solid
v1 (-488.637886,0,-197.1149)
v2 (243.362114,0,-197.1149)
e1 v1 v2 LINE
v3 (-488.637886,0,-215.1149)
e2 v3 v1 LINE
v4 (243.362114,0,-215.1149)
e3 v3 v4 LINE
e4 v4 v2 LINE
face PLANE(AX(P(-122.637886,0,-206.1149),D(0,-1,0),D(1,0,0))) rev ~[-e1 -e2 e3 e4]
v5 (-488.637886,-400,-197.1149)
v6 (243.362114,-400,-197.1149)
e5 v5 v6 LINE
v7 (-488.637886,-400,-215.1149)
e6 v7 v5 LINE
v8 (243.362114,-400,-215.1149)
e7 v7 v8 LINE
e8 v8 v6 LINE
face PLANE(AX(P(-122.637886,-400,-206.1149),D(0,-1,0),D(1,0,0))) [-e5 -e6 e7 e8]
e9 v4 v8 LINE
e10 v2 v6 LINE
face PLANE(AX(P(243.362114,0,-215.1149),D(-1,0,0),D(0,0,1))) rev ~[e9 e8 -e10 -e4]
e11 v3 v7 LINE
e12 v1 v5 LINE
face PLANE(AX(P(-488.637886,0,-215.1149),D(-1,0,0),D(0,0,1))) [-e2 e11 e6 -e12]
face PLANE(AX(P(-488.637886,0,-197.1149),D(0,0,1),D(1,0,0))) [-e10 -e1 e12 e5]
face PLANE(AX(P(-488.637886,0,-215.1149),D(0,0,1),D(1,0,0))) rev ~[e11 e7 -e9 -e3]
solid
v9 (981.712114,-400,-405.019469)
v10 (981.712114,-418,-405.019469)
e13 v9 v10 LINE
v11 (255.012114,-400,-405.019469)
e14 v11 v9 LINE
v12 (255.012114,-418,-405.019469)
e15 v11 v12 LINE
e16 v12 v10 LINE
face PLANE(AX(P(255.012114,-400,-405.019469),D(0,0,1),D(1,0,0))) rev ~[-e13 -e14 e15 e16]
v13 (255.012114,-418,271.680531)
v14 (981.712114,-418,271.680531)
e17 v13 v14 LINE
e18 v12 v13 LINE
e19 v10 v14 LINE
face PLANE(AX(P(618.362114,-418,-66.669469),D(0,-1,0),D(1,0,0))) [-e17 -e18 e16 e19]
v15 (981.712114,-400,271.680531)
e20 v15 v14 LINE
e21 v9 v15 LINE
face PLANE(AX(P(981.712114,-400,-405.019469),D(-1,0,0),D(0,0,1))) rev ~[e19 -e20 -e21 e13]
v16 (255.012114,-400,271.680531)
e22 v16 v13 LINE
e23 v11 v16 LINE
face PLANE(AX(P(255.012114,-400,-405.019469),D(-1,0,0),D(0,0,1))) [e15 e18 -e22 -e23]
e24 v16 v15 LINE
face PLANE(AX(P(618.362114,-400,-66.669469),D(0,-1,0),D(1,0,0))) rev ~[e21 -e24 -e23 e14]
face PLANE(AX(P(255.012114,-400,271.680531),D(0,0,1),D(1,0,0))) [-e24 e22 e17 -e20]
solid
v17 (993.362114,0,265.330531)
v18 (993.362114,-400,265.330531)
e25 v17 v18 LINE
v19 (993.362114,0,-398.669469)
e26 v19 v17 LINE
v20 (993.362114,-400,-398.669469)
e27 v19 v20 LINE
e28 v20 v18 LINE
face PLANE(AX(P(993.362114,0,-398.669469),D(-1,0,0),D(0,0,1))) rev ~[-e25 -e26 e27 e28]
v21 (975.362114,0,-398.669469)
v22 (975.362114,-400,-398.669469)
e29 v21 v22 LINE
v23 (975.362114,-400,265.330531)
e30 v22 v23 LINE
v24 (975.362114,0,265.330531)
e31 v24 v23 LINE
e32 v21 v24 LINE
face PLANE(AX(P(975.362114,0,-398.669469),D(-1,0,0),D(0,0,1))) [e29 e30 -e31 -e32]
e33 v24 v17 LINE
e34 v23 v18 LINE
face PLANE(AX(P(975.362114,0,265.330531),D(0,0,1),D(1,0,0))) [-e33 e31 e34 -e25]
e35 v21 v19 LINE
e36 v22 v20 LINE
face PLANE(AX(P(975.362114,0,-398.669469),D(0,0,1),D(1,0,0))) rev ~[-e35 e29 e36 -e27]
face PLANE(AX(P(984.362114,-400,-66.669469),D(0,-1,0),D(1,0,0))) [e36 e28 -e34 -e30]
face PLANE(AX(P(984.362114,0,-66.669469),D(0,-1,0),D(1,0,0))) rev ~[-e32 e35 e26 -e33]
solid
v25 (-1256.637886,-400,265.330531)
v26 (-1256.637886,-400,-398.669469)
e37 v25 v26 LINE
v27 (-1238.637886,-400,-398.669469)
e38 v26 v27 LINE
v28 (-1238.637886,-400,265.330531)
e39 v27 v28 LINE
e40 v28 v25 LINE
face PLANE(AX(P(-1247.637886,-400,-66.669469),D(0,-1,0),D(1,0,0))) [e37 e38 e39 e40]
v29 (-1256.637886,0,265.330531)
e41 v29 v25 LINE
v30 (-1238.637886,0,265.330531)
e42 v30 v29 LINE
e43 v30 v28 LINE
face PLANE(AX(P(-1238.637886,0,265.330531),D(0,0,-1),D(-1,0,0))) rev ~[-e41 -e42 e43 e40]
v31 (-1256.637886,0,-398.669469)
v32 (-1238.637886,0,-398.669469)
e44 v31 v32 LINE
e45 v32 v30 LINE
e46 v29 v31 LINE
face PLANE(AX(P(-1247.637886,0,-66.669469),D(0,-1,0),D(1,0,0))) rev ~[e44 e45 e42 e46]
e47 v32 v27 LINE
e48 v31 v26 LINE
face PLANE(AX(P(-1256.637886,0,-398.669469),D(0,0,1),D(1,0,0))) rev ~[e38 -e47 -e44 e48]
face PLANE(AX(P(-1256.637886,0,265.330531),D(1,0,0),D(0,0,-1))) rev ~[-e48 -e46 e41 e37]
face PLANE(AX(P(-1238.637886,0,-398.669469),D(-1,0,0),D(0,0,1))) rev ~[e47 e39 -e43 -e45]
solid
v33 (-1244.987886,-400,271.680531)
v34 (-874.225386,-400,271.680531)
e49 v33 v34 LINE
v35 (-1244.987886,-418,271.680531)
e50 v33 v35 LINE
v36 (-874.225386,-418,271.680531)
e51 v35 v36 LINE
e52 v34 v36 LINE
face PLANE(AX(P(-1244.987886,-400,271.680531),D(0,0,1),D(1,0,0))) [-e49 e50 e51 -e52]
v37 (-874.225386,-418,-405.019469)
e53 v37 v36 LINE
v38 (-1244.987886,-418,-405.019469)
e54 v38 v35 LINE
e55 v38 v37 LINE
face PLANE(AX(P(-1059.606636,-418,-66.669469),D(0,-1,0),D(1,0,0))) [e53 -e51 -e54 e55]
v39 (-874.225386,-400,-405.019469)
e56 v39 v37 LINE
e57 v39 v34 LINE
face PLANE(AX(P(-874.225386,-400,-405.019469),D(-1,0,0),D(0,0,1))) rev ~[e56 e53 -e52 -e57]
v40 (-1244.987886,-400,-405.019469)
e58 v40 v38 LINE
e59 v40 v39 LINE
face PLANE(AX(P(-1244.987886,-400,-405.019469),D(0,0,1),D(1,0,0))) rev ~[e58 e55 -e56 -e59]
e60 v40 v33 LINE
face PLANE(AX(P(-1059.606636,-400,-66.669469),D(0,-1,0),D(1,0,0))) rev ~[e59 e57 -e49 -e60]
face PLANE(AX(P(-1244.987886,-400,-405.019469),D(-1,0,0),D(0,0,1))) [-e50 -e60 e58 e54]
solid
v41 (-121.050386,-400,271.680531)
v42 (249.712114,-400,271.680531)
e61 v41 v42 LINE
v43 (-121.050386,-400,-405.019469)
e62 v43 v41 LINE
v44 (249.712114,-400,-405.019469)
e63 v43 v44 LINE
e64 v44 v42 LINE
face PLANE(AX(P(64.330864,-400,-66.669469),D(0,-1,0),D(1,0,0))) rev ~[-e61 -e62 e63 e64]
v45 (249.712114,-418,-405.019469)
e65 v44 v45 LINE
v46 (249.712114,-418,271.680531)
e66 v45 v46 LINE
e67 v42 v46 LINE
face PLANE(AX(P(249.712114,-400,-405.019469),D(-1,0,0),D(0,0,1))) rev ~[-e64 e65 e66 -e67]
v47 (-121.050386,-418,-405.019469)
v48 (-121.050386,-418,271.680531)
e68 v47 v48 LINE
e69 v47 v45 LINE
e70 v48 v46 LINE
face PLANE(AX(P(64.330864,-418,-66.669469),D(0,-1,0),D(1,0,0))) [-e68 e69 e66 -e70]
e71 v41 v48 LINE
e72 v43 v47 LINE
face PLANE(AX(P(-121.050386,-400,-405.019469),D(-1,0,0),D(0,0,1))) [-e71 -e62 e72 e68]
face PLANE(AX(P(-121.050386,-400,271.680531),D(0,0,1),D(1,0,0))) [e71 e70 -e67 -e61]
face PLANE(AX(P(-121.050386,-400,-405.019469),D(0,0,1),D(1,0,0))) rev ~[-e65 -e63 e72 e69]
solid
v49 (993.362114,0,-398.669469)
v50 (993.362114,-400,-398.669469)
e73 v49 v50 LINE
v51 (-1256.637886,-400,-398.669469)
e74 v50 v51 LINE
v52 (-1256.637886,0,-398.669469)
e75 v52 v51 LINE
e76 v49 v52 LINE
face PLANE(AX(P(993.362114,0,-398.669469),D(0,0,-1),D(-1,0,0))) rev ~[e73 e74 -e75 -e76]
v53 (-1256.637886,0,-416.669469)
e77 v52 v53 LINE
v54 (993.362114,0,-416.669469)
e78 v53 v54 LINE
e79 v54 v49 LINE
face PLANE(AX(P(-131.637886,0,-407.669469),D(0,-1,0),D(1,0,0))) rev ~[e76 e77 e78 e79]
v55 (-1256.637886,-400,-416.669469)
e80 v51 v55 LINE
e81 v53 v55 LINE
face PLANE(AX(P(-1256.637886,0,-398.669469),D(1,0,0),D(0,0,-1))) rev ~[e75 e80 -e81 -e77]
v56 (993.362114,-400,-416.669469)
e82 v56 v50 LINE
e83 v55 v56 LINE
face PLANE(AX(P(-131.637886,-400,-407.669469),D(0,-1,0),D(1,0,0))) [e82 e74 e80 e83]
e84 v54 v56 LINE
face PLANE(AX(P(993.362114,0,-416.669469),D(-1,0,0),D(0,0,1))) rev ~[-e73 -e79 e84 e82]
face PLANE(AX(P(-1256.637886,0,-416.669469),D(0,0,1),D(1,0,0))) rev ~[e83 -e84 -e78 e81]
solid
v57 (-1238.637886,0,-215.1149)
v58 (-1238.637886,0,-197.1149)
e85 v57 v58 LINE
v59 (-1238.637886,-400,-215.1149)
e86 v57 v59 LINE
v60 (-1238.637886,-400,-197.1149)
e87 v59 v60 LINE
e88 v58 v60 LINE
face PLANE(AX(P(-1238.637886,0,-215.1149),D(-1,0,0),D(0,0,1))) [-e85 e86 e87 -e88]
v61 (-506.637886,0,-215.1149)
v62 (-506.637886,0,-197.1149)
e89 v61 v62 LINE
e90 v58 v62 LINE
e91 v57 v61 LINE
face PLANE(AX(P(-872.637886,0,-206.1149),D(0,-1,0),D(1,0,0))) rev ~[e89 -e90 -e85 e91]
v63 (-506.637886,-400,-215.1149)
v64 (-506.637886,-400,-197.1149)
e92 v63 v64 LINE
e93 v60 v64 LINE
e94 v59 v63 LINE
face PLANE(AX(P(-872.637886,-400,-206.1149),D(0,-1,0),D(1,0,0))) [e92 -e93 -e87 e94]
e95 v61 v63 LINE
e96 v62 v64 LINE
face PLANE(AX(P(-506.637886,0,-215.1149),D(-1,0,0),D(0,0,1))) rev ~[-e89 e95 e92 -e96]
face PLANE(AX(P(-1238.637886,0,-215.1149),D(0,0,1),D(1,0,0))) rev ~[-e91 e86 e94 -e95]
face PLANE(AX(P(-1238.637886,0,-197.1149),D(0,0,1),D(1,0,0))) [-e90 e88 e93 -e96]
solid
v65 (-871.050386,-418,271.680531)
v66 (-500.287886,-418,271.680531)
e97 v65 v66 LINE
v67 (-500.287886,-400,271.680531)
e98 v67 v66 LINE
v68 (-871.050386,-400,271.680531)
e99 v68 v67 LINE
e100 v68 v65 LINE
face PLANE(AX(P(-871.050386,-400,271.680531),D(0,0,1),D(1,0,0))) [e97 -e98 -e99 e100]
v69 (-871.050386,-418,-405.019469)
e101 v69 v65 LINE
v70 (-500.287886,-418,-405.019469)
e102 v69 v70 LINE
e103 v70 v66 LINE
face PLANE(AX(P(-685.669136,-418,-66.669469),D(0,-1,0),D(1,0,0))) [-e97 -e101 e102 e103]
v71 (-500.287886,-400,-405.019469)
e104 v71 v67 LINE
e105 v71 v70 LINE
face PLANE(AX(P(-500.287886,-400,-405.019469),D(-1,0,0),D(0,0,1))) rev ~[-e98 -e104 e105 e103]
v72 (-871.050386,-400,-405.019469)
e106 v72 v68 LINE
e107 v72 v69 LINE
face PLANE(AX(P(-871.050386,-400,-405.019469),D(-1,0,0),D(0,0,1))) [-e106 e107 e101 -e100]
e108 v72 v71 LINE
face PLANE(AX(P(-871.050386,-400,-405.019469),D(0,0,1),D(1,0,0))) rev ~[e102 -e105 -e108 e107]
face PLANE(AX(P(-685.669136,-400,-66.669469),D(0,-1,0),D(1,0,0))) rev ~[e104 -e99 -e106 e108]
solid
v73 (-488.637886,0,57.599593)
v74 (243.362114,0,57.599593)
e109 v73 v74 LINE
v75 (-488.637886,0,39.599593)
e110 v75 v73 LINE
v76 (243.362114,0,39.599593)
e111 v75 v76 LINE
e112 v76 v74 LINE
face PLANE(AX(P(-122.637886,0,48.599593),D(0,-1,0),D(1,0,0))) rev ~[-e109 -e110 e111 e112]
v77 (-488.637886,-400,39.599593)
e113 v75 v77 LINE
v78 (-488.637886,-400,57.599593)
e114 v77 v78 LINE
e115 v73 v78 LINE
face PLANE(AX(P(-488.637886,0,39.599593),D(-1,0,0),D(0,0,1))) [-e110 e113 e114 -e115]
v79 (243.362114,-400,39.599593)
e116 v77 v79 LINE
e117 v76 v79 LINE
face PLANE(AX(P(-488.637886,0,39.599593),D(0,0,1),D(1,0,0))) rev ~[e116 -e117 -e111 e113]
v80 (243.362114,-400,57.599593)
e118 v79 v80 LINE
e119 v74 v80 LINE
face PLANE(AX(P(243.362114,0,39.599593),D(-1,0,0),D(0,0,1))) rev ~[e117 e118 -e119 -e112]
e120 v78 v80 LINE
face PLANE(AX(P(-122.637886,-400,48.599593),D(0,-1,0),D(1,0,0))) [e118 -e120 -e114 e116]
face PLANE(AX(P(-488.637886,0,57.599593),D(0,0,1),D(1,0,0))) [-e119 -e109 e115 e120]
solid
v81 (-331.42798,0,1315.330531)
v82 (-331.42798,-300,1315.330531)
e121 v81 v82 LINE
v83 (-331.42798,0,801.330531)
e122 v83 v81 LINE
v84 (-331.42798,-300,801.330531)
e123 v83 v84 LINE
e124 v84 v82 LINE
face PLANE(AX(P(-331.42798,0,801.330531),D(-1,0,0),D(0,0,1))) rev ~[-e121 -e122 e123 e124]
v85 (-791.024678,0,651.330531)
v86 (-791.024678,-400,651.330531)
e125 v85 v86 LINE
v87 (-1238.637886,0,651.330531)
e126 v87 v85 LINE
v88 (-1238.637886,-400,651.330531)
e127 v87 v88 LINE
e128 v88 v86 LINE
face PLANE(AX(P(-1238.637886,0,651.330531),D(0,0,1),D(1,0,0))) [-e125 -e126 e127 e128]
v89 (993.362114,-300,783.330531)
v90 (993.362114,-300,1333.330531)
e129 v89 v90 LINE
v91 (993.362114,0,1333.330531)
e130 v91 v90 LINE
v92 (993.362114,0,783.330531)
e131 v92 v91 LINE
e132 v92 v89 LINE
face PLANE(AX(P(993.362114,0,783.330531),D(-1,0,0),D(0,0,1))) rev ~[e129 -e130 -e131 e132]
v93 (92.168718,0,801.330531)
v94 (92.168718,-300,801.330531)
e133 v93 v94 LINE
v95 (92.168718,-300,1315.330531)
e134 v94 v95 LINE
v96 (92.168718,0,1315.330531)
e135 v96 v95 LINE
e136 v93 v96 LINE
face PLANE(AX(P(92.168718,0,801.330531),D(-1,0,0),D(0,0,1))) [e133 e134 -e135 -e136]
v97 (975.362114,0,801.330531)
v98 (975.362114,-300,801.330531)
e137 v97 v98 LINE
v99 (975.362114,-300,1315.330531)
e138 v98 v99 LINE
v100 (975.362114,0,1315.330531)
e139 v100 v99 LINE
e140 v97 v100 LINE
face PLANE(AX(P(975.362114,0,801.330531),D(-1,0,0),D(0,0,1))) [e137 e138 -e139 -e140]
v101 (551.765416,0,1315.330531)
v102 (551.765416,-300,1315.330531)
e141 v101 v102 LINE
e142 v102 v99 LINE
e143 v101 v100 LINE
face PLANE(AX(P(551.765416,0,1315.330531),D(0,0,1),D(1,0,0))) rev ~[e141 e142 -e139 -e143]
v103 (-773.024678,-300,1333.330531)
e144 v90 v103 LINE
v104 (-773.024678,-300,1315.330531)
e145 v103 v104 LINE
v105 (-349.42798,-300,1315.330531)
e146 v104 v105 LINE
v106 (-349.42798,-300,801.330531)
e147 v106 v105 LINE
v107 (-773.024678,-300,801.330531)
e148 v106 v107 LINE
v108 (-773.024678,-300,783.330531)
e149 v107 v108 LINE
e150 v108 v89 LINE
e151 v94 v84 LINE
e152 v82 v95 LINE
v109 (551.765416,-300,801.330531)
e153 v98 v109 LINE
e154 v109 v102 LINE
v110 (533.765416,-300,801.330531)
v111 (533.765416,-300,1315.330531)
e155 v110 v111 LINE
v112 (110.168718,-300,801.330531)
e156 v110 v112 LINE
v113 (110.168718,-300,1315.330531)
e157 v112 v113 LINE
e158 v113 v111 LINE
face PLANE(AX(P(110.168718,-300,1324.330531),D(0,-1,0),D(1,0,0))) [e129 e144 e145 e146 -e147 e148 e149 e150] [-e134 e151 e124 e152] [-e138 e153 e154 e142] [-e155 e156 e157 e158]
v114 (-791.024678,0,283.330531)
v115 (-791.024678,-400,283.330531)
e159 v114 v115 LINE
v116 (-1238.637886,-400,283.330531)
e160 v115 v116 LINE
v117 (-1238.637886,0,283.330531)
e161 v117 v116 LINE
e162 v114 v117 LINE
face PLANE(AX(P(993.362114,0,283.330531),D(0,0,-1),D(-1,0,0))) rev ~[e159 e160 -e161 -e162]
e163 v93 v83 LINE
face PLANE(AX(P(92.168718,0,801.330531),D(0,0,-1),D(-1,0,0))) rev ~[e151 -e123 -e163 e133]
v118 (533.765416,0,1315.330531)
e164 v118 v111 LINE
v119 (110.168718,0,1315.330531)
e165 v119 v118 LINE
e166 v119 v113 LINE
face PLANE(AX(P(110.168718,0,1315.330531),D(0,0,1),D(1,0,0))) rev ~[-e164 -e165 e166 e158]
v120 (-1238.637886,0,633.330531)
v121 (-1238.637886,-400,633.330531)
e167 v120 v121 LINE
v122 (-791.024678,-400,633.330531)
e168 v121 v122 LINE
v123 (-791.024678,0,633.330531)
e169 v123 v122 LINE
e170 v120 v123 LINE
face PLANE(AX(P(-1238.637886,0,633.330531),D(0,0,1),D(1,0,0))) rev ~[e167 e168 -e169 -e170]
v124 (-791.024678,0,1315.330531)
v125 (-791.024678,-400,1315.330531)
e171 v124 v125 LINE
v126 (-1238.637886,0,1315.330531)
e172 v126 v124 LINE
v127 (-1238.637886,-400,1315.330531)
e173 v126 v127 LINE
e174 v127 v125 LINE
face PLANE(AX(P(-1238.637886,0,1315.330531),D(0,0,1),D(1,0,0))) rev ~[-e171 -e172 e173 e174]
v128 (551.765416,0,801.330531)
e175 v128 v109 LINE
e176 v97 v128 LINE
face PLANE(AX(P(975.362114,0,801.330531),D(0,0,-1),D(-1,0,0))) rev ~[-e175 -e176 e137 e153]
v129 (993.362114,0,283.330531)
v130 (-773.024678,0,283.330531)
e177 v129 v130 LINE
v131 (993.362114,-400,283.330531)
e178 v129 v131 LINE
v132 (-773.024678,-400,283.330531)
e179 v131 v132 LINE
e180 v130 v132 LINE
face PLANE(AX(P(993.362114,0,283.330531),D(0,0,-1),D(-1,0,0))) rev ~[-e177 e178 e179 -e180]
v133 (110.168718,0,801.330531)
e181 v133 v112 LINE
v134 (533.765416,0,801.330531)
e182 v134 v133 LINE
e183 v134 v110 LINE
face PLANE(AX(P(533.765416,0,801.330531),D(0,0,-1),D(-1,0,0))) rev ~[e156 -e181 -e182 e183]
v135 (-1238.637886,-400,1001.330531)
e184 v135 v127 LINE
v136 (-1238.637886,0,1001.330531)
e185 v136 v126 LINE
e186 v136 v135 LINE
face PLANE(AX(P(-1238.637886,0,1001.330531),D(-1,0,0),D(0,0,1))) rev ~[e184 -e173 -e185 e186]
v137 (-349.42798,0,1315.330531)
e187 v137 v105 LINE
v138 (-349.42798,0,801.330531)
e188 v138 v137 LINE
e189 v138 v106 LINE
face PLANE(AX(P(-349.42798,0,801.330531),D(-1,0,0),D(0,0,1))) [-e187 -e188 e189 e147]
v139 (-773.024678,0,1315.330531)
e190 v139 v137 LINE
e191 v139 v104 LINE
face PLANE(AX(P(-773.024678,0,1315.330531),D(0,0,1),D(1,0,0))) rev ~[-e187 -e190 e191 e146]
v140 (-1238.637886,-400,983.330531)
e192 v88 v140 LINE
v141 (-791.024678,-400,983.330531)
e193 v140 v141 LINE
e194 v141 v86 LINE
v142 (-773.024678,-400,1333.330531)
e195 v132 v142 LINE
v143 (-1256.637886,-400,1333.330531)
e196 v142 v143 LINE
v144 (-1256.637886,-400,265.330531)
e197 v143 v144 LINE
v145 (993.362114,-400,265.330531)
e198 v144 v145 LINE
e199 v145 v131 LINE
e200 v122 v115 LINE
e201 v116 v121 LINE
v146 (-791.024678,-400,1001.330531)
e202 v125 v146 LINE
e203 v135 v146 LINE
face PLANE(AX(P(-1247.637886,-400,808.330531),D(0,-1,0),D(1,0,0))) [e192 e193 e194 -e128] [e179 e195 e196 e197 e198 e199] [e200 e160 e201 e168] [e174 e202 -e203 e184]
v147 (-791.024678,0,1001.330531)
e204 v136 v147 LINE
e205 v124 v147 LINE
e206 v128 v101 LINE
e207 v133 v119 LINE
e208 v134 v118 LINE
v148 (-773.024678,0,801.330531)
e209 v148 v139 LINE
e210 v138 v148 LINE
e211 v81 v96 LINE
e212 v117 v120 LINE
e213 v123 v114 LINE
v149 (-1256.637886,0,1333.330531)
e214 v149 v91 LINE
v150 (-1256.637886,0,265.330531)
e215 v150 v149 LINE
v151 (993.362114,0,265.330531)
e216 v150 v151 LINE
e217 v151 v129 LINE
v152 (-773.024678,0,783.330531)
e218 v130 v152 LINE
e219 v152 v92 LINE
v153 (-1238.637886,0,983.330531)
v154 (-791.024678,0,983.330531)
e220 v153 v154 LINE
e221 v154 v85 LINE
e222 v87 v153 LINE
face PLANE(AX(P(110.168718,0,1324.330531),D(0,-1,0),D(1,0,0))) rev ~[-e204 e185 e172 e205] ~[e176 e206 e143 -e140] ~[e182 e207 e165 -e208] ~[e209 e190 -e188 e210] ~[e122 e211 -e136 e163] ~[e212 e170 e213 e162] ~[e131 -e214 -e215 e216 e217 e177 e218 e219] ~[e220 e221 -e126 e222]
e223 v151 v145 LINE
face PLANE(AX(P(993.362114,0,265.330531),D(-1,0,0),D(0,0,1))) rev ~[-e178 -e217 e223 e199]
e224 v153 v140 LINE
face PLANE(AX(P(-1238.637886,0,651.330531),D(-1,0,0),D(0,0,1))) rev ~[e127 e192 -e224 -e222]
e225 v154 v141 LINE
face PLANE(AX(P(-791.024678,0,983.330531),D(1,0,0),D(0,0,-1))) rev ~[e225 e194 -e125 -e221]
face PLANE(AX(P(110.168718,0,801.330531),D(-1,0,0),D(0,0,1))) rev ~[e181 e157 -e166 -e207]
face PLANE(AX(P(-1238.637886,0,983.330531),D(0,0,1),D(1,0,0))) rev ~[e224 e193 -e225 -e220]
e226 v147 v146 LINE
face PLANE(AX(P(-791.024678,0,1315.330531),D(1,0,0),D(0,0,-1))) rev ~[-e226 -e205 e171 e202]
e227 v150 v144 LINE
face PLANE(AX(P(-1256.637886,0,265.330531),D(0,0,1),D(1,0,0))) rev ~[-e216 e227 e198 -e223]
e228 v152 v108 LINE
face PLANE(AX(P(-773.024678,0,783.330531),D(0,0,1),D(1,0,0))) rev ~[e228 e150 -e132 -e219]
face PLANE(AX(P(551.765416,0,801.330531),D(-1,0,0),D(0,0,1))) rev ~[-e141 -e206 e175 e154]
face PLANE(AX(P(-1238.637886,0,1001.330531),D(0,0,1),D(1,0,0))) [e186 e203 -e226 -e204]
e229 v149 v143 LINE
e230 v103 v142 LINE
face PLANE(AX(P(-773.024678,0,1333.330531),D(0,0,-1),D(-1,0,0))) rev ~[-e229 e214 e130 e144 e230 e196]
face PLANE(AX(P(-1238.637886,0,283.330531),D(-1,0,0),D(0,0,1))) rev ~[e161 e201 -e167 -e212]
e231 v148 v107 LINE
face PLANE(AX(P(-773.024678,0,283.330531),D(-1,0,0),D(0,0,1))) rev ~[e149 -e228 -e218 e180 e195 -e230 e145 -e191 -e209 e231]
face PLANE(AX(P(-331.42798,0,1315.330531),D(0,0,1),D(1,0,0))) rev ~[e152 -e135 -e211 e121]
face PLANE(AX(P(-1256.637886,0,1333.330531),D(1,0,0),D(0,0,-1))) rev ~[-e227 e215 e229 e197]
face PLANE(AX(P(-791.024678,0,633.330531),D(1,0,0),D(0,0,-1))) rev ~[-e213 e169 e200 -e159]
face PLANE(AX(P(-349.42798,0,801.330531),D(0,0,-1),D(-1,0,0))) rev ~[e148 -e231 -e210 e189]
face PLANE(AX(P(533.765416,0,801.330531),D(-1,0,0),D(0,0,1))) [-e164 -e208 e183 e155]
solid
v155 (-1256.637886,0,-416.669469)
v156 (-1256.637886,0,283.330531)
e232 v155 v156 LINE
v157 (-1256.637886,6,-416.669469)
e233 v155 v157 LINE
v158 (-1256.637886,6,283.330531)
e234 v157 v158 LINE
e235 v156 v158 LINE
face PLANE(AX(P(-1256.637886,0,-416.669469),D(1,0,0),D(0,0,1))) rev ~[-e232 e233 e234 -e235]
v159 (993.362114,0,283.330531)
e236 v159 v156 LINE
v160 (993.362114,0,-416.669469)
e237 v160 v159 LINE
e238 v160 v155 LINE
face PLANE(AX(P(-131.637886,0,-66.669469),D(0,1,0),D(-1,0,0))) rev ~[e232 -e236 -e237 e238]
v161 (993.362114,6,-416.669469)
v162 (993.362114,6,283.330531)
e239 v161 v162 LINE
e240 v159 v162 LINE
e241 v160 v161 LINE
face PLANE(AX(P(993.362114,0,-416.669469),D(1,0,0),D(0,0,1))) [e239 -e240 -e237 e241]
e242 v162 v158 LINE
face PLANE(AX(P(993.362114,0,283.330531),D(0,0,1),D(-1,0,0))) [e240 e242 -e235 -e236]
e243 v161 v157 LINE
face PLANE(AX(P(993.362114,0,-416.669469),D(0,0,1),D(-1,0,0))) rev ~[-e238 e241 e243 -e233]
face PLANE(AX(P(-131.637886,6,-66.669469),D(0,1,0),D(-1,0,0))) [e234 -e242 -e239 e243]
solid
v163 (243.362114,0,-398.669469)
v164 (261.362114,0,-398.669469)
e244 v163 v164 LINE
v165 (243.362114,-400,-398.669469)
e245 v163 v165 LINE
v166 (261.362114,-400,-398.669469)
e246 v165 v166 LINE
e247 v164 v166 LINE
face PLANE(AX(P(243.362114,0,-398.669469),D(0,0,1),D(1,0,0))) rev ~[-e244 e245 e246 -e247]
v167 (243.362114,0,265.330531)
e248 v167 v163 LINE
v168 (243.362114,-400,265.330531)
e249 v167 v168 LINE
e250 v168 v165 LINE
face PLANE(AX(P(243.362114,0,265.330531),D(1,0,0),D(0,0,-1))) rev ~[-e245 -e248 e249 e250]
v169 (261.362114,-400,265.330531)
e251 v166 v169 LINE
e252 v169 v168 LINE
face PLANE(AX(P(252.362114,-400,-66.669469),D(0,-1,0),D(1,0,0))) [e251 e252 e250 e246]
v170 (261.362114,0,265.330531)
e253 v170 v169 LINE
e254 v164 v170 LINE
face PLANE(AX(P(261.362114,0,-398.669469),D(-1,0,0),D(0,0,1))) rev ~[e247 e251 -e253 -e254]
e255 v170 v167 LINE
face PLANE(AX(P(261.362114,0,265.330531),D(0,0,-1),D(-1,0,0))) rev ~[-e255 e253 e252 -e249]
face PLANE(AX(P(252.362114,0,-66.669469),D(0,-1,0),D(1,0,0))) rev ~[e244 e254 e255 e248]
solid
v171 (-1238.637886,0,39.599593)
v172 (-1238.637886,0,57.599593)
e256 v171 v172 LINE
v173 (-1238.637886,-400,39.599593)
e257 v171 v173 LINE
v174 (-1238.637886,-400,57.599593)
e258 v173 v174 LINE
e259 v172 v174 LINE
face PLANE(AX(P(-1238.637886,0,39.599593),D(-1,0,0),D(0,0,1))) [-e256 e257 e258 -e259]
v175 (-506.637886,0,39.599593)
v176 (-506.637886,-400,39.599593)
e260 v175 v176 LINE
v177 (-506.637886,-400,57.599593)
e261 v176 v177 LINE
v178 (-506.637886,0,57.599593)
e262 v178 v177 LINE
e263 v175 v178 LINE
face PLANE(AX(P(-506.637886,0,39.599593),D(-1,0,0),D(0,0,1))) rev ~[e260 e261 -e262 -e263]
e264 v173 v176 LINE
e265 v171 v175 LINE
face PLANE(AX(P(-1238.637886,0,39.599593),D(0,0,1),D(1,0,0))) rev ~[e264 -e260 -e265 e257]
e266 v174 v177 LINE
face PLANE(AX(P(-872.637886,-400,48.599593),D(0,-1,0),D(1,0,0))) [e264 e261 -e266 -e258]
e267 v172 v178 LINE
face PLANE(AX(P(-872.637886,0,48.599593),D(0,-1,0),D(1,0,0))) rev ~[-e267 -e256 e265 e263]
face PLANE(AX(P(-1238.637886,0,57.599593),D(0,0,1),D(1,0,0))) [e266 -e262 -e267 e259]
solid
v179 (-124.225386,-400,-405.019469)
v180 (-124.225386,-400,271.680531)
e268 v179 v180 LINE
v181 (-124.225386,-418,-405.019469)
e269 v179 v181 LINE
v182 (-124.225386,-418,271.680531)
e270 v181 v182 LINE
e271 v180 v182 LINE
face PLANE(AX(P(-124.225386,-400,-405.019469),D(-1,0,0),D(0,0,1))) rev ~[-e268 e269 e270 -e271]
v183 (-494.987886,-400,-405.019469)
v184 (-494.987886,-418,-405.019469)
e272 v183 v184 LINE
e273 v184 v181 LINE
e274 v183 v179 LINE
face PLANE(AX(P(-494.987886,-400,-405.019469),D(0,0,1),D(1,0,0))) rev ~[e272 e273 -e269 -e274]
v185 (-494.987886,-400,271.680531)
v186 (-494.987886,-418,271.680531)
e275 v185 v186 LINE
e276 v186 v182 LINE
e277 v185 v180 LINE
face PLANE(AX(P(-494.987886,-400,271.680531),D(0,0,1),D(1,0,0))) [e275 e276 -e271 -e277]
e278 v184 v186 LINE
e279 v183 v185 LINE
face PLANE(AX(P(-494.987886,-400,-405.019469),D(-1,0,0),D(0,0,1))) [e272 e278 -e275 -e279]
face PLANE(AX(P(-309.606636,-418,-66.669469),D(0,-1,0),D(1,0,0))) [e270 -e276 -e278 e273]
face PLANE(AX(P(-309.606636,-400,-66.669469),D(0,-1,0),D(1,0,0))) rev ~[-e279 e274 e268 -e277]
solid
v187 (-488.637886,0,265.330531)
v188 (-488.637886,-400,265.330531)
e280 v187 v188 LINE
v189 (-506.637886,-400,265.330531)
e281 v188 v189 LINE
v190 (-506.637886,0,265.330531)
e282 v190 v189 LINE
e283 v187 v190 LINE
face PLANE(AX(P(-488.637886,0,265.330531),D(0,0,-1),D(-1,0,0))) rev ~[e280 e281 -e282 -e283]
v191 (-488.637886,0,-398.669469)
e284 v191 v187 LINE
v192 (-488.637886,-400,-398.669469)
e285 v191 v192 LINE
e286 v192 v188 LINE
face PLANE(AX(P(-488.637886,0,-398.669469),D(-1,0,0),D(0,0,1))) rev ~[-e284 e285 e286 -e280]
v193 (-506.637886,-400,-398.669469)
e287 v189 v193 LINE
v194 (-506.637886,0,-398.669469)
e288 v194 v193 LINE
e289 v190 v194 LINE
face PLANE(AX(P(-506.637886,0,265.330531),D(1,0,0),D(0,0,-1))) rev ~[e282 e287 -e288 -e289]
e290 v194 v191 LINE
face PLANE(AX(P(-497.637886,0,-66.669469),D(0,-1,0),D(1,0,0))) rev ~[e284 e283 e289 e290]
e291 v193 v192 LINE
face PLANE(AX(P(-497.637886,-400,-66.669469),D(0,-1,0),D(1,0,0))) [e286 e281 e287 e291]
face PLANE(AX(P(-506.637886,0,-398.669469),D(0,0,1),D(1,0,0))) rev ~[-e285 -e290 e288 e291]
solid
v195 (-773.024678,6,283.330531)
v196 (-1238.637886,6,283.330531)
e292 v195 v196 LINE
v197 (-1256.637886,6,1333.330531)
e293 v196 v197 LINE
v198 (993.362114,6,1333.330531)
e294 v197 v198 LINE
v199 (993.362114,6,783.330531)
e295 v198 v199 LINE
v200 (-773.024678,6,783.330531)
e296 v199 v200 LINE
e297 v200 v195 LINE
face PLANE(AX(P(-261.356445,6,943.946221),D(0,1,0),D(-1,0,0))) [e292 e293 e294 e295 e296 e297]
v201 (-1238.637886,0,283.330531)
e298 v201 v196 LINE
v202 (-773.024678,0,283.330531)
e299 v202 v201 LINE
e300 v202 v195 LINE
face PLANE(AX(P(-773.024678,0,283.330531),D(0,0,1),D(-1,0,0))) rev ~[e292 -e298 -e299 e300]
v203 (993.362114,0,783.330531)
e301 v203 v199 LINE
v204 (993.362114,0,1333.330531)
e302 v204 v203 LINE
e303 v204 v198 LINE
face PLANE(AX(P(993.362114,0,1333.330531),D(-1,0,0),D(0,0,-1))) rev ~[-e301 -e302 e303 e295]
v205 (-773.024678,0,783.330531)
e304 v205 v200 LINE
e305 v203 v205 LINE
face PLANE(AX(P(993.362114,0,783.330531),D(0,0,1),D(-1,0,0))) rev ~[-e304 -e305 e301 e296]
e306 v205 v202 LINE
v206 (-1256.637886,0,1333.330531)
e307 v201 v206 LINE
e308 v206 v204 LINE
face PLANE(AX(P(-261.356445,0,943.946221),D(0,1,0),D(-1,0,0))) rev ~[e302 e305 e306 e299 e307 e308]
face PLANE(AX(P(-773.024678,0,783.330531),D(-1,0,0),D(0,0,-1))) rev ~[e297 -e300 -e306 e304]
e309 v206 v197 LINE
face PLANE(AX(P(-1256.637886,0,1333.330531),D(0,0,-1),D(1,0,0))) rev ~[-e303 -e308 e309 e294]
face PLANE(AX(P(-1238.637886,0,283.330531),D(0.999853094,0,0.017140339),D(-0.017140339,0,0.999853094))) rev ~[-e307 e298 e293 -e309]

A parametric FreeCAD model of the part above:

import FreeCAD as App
import Part
import Sketcher

V = App.Vector


def add_polygon(sketch, points):
    """Adds a closed chain of lines whose ends are joined by coincident constraints."""
    first, n = sketch.GeometryCount, len(points)
    for a, b in zip(points, points[1:] + points[:1]):
        sketch.addGeometry(Part.LineSegment(App.Vector(*a, 0), App.Vector(*b, 0)), False)
    for i in range(n):
        sketch.addConstraint(Sketcher.Constraint("Coincident", first + i, 2, first + (i + 1) % n, 1))

doc = App.newDocument("Part")
body = doc.addObject("PartDesign::Body", "Body")

sketch1 = body.newObject("Sketcher::SketchObject", "Sketch")
sketch1.AttachmentSupport = (doc.getObject("XZ_Plane"), [""])
sketch1.MapMode = "FlatFace"
add_polygon(sketch1, [(993, 283), (-1257, 283), (-1257, 265), (993, 265)])
sketch1.addConstraint([
    Sketcher.Constraint("Horizontal", 0),
    Sketcher.Constraint("Vertical", 1),
    Sketcher.Constraint("Horizontal", 2),
    Sketcher.Constraint("Vertical", 3),
    Sketcher.Constraint("DistanceX", 0, 2, 0, 1, 2250.0),
    Sketcher.Constraint("DistanceY", 1, 2, 1, 1, 18.0),
    Sketcher.Constraint("DistanceY", -1, 1, 0, 2, 283.330531),
    Sketcher.Constraint("DistanceX", 0, 2, -1, 1, 1256.637886),
])
pad1 = body.newObject("PartDesign::Pad", "Pad")
pad1.Profile = sketch1
pad1.Length = 400

sketch2 = body.newObject("Sketcher::SketchObject", "Sketch001")
sketch2.AttachmentSupport = (doc.getObject("XZ_Plane"), [""])
sketch2.MapMode = "FlatFace"
add_polygon(sketch2, [(-1257, 283), (-1239, 283), (-1239, 633), (-791, 633), (-791, 283), (-773, 283), (-773, 1333), (-1257, 1333)])
add_polygon(sketch2, [(-1239, 651), (-1239, 983), (-791, 983), (-791, 651)])
add_polygon(sketch2, [(-1239, 1001), (-1239, 1315), (-791, 1315), (-791, 1001)])
sketch2.addConstraint([
    Sketcher.Constraint("Horizontal", 0),
    Sketcher.Constraint("Vertical", 1),
    Sketcher.Constraint("Horizontal", 2),
    Sketcher.Constraint("Vertical", 3),
    Sketcher.Constraint("Horizontal", 4),
    Sketcher.Constraint("Vertical", 5),
    Sketcher.Constraint("Horizontal", 6),
    Sketcher.Constraint("Vertical", 7),
    Sketcher.Constraint("Vertical", 8),
    Sketcher.Constraint("Horizontal", 9),
    Sketcher.Constraint("Vertical", 10),
    Sketcher.Constraint("Horizontal", 11),
    Sketcher.Constraint("Vertical", 12),
    Sketcher.Constraint("Horizontal", 13),
    Sketcher.Constraint("Vertical", 14),
    Sketcher.Constraint("Horizontal", 15),
    Sketcher.Constraint("Horizontal", 0, 2, 3, 2),
    Sketcher.Constraint("Vertical", 1, 2, 8, 2),
    Sketcher.Constraint("Vertical", 3, 2, 9, 2),
    Sketcher.Constraint("Vertical", 11, 2, 12, 2),
    Sketcher.Constraint("Vertical", 10, 2, 13, 2),
    Sketcher.Constraint("Equal", 0, 4),
    Sketcher.Constraint("DistanceX", 0, 1, 0, 2, 18.0),
    Sketcher.Constraint("DistanceY", 1, 1, 1, 2, 350.0),
    Sketcher.Constraint("DistanceY", 5, 1, 5, 2, 1050.0),
    Sketcher.Constraint("DistanceY", 8, 1, 8, 2, 332.0),
    Sketcher.Constraint("DistanceY", 12, 1, 12, 2, 314.0),
    Sketcher.Constraint("DistanceY", 1, 2, 8, 2, 350.0),
    Sketcher.Constraint("DistanceY", 12, 2, 6, 2, 18.0),
    Sketcher.Constraint("DistanceX", 2, 1, 2, 2, 447.613208),
    Sketcher.Constraint("DistanceY", -1, 1, 0, 2, 283.330531),
    Sketcher.Constraint("DistanceX", 2, 2, -1, 1, 791.024678),
])
pad2 = body.newObject("PartDesign::Pad", "Pad001")
pad2.Profile = sketch2
pad2.Length = 400

sketch3 = body.newObject("Sketcher::SketchObject", "Sketch002")
sketch3.AttachmentSupport = (doc.getObject("XZ_Plane"), [""])
sketch3.MapMode = "FlatFace"
add_polygon(sketch3, [(-773, 1333), (-773, 1315), (-349, 1315), (-349, 801), (-773, 801), (-773, 783), (993, 783), (993, 1333)])
add_polygon(sketch3, [(975, 801), (552, 801), (552, 1315), (975, 1315)])
add_polygon(sketch3, [(534, 801), (110, 801), (110, 1315), (534, 1315)])
add_polygon(sketch3, [(92, 801), (-331, 801), (-331, 1315), (92, 1315)])
sketch3.addConstraint([
    Sketcher.Constraint("Vertical", 0),
    Sketcher.Constraint("Horizontal", 1),
    Sketcher.Constraint("Vertical", 2),
    Sketcher.Constraint("Horizontal", 3),
    Sketcher.Constraint("Vertical", 4),
    Sketcher.Constraint("Horizontal", 5),
    Sketcher.Constraint("Vertical", 6),
    Sketcher.Constraint("Horizontal", 7),
    Sketcher.Constraint("Horizontal", 8),
    Sketcher.Constraint("Vertical", 9),
    Sketcher.Constraint("Horizontal", 10),
    Sketcher.Constraint("Vertical", 11),
    Sketcher.Constraint("Horizontal", 12),
    Sketcher.Constraint("Vertical", 13),
    Sketcher.Constraint("Horizontal", 14),
    Sketcher.Constraint("Vertical", 15),
    Sketcher.Constraint("Horizontal", 16),
    Sketcher.Constraint("Vertical", 17),
    Sketcher.Constraint("Horizontal", 18),
    Sketcher.Constraint("Vertical", 19),
    Sketcher.Constraint("Horizontal", 3, 2, 8, 2),
    Sketcher.Constraint("Horizontal", 1, 2, 9, 2),
    Sketcher.Constraint("Horizontal", 11, 2, 12, 2),
    Sketcher.Constraint("Horizontal", 10, 2, 13, 2),
    Sketcher.Constraint("Horizontal", 15, 2, 16, 2),
    Sketcher.Constraint("Horizontal", 14, 2, 17, 2),
    Sketcher.Constraint("Vertical", 0, 2, 3, 2),
    Sketcher.Constraint("Equal", 3, 8),
    Sketcher.Constraint("Equal", 10, 12),
    Sketcher.Constraint("Equal", 14, 16),
    Sketcher.Constraint("Equal", 0, 4),
    Sketcher.Constraint("DistanceY", 0, 2, 0, 1, 18.0),
    Sketcher.Constraint("DistanceY", 2, 2, 2, 1, 514.0),
    Sketcher.Constraint("DistanceX", 10, 2, 6, 2, 18.0),
    Sketcher.Constraint("DistanceX", 14, 2, 9, 2, 18.0),
    Sketcher.Constraint("DistanceX", 2, 2, 16, 2, 18.0),
    Sketcher.Constraint("DistanceX", 18, 2, 13, 2, 18.0),
    Sketcher.Constraint("DistanceX", 1, 1, 1, 2, 423.596698),
    Sketcher.Constraint("DistanceX", 0, 2, -1, 1, 773.024678),
    Sketcher.Constraint("DistanceY", -1, 1, 0, 2, 1315.330531),
])
pad3 = body.newObject("PartDesign::Pad", "Pad002")
pad3.Profile = sketch3
pad3.Length = 300
body2 = doc.addObject("PartDesign::Body", "Body001")

sketch4 = body2.newObject("Sketcher::SketchObject", "Sketch003")
sketch4.AttachmentSupport = (doc.getObject("XZ_Plane001"), [""])
sketch4.MapMode = "FlatFace"
add_polygon(sketch4, [(-1257, -399), (-1257, -417), (993, -417), (993, -399)])
sketch4.addConstraint([
    Sketcher.Constraint("Vertical", 0),
    Sketcher.Constraint("Horizontal", 1),
    Sketcher.Constraint("Vertical", 2),
    Sketcher.Constraint("Horizontal", 3),
    Sketcher.Constraint("DistanceX", 1, 1, 1, 2, 2250.0),
    Sketcher.Constraint("DistanceY", 0, 2, 0, 1, 18.0),
    Sketcher.Constraint("DistanceY", 0, 2, -1, 1, 416.669469),
    Sketcher.Constraint("DistanceX", 0, 2, -1, 1, 1256.637886),
])
pad4 = body2.newObject("PartDesign::Pad", "Pad003")
pad4.Profile = sketch4
pad4.Length = 400
body3 = doc.addObject("PartDesign::Body", "Body002")

sketch5 = body3.newObject("Sketcher::SketchObject", "Sketch004")
sketch5.AttachmentSupport = (doc.getObject("XZ_Plane002"), [""])
sketch5.MapMode = "FlatFace"
add_polygon(sketch5, [(-1239, 265), (-1257, 265), (-1257, -399), (-1239, -399)])
sketch5.addConstraint([
    Sketcher.Constraint("Horizontal", 0),
    Sketcher.Constraint("Vertical", 1),
    Sketcher.Constraint("Horizontal", 2),
    Sketcher.Constraint("Vertical", 3),
    Sketcher.Constraint("DistanceX", 0, 2, 0, 1, 18.0),
    Sketcher.Constraint("DistanceY", 1, 2, 1, 1, 664.0),
    Sketcher.Constraint("DistanceY", -1, 1, 0, 2, 265.330531),
    Sketcher.Constraint("DistanceX", 0, 2, -1, 1, 1256.637886),
])
pad5 = body3.newObject("PartDesign::Pad", "Pad004")
pad5.Profile = sketch5
pad5.Length = 400
body4 = doc.addObject("PartDesign::Body", "Body003")

sketch6 = body4.newObject("Sketcher::SketchObject", "Sketch005")
sketch6.AttachmentSupport = (doc.getObject("XZ_Plane003"), [""])
sketch6.MapMode = "FlatFace"
add_polygon(sketch6, [(975, 265), (975, -399), (993, -399), (993, 265)])
sketch6.addConstraint([
    Sketcher.Constraint("Vertical", 0),
    Sketcher.Constraint("Horizontal", 1),
    Sketcher.Constraint("Vertical", 2),
    Sketcher.Constraint("Horizontal", 3),
    Sketcher.Constraint("DistanceX", 1, 1, 1, 2, 18.0),
    Sketcher.Constraint("DistanceY", 0, 2, 0, 1, 664.0),
    Sketcher.Constraint("DistanceY", 0, 2, -1, 1, 398.669469),
    Sketcher.Constraint("DistanceX", -1, 1, 0, 2, 975.362114),
])
pad6 = body4.newObject("PartDesign::Pad", "Pad005")
pad6.Profile = sketch6
pad6.Length = 400
body5 = doc.addObject("PartDesign::Body", "Body004")

sketch7 = body5.newObject("Sketcher::SketchObject", "Sketch006")
sketch7.AttachmentSupport = (doc.getObject("XZ_Plane004"), [""])
sketch7.MapMode = "FlatFace"
add_polygon(sketch7, [(-489, 265), (-507, 265), (-507, -399), (-489, -399)])
sketch7.addConstraint([
    Sketcher.Constraint("Horizontal", 0),
    Sketcher.Constraint("Vertical", 1),
    Sketcher.Constraint("Horizontal", 2),
    Sketcher.Constraint("Vertical", 3),
    Sketcher.Constraint("DistanceX", 0, 2, 0, 1, 18.0),
    Sketcher.Constraint("DistanceY", 1, 2, 1, 1, 664.0),
    Sketcher.Constraint("DistanceY", -1, 1, 0, 2, 265.330531),
    Sketcher.Constraint("DistanceX", 0, 2, -1, 1, 506.637886),
])
pad7 = body5.newObject("PartDesign::Pad", "Pad006")
pad7.Profile = sketch7
pad7.Length = 400
body6 = doc.addObject("PartDesign::Body", "Body005")

sketch8 = body6.newObject("Sketcher::SketchObject", "Sketch007")
sketch8.AttachmentSupport = (doc.getObject("XZ_Plane005"), [""])
sketch8.MapMode = "FlatFace"
add_polygon(sketch8, [(-1239, -197), (-1239, -215), (-507, -215), (-507, -197)])
sketch8.addConstraint([
    Sketcher.Constraint("Vertical", 0),
    Sketcher.Constraint("Horizontal", 1),
    Sketcher.Constraint("Vertical", 2),
    Sketcher.Constraint("Horizontal", 3),
    Sketcher.Constraint("DistanceX", 1, 1, 1, 2, 732.0),
    Sketcher.Constraint("DistanceY", 0, 2, 0, 1, 18.0),
    Sketcher.Constraint("DistanceY", 0, 2, -1, 1, 215.1149),
    Sketcher.Constraint("DistanceX", 0, 2, -1, 1, 1238.637886),
])
pad8 = body6.newObject("PartDesign::Pad", "Pad007")
pad8.Profile = sketch8
pad8.Length = 400
body7 = doc.addObject("PartDesign::Body", "Body006")

sketch9 = body7.newObject("Sketcher::SketchObject", "Sketch008")
sketch9.AttachmentSupport = (doc.getObject("XZ_Plane006"), [""])
sketch9.MapMode = "FlatFace"
add_polygon(sketch9, [(-1239, 58), (-1239, 40), (-507, 40), (-507, 58)])
sketch9.addConstraint([
    Sketcher.Constraint("Vertical", 0),
    Sketcher.Constraint("Horizontal", 1),
    Sketcher.Constraint("Vertical", 2),
    Sketcher.Constraint("Horizontal", 3),
    Sketcher.Constraint("DistanceX", 1, 1, 1, 2, 732.0),
    Sketcher.Constraint("DistanceY", 0, 2, 0, 1, 18.0),
    Sketcher.Constraint("DistanceX", 0, 2, -1, 1, 1238.637886),
    Sketcher.Constraint("DistanceY", -1, 1, 0, 2, 39.599593),
])
pad9 = body7.newObject("PartDesign::Pad", "Pad008")
pad9.Profile = sketch9
pad9.Length = 400
body8 = doc.addObject("PartDesign::Body", "Body007")

sketch10 = body8.newObject("Sketcher::SketchObject", "Sketch009")
sketch10.AttachmentSupport = (doc.getObject("XZ_Plane007"), [""])
sketch10.MapMode = "FlatFace"
add_polygon(sketch10, [(-489, 58), (-489, 40), (243, 40), (243, 58)])
sketch10.addConstraint([
    Sketcher.Constraint("Vertical", 0),
    Sketcher.Constraint("Horizontal", 1),
    Sketcher.Constraint("Vertical", 2),
    Sketcher.Constraint("Horizontal", 3),
    Sketcher.Constraint("DistanceX", 1, 1, 1, 2, 732.0),
    Sketcher.Constraint("DistanceY", 0, 2, 0, 1, 18.0),
    Sketcher.Constraint("DistanceX", 0, 2, -1, 1, 488.637886),
    Sketcher.Constraint("DistanceY", -1, 1, 0, 2, 39.599593),
])
pad10 = body8.newObject("PartDesign::Pad", "Pad009")
pad10.Profile = sketch10
pad10.Length = 400
body9 = doc.addObject("PartDesign::Body", "Body008")

sketch11 = body9.newObject("Sketcher::SketchObject", "Sketch010")
sketch11.AttachmentSupport = (doc.getObject("XZ_Plane008"), [""])
sketch11.MapMode = "FlatFace"
add_polygon(sketch11, [(-489, -197), (-489, -215), (243, -215), (243, -197)])
sketch11.addConstraint([
    Sketcher.Constraint("Vertical", 0),
    Sketcher.Constraint("Horizontal", 1),
    Sketcher.Constraint("Vertical", 2),
    Sketcher.Constraint("Horizontal", 3),
    Sketcher.Constraint("DistanceX", 1, 1, 1, 2, 732.0),
    Sketcher.Constraint("DistanceY", 0, 2, 0, 1, 18.0),
    Sketcher.Constraint("DistanceY", 0, 2, -1, 1, 215.1149),
    Sketcher.Constraint("DistanceX", 0, 2, -1, 1, 488.637886),
])
pad11 = body9.newObject("PartDesign::Pad", "Pad010")
pad11.Profile = sketch11
pad11.Length = 400
body10 = doc.addObject("PartDesign::Body", "Body009")

sketch12 = body10.newObject("Sketcher::SketchObject", "Sketch011")
sketch12.AttachmentSupport = (doc.getObject("XZ_Plane009"), [""])
sketch12.MapMode = "FlatFace"
add_polygon(sketch12, [(261, -399), (261, 265), (243, 265), (243, -399)])
sketch12.addConstraint([
    Sketcher.Constraint("Vertical", 0),
    Sketcher.Constraint("Horizontal", 1),
    Sketcher.Constraint("Vertical", 2),
    Sketcher.Constraint("Horizontal", 3),
    Sketcher.Constraint("DistanceX", 1, 2, 1, 1, 18.0),
    Sketcher.Constraint("DistanceY", 0, 1, 0, 2, 664.0),
    Sketcher.Constraint("DistanceY", -1, 1, 0, 2, 265.330531),
    Sketcher.Constraint("DistanceX", -1, 1, 0, 2, 261.362114),
])
pad12 = body10.newObject("PartDesign::Pad", "Pad011")
pad12.Profile = sketch12
pad12.Length = 400
body11 = doc.addObject("PartDesign::Body", "Body010")

sketch13 = body11.newObject("Sketcher::SketchObject", "Sketch012")
sketch13.AttachmentSupport = (doc.getObject("XZ_Plane010"), [""])
sketch13.MapMode = "FlatFace"
add_polygon(sketch13, [(993, 283), (993, -417), (-1257, -417), (-1257, 283)])
sketch13.addConstraint([
    Sketcher.Constraint("Vertical", 0),
    Sketcher.Constraint("Horizontal", 1),
    Sketcher.Constraint("Vertical", 2),
    Sketcher.Constraint("Horizontal", 3),
    Sketcher.Constraint("DistanceX", 1, 2, 1, 1, 2250.0),
    Sketcher.Constraint("DistanceY", 0, 2, 0, 1, 700.0),
    Sketcher.Constraint("DistanceY", 0, 2, -1, 1, 416.669469),
    Sketcher.Constraint("DistanceX", -1, 1, 0, 2, 993.362114),
])
pad13 = body11.newObject("PartDesign::Pad", "Pad012")
pad13.Profile = sketch13
pad13.Length = 6
pad13.Reversed = True
body12 = doc.addObject("PartDesign::Body", "Body011")

sketch14 = body12.newObject("Sketcher::SketchObject", "Sketch013")
sketch14.AttachmentSupport = (doc.getObject("XZ_Plane011"), [""])
sketch14.MapMode = "FlatFace"
sketch14.AttachmentOffset = App.Placement(V(0, 0, 400), App.Rotation())
add_polygon(sketch14, [(-1245, 272), (-1245, -405), (-874, -405), (-874, 272)])
sketch14.addConstraint([
    Sketcher.Constraint("Vertical", 0),
    Sketcher.Constraint("Horizontal", 1),
    Sketcher.Constraint("Vertical", 2),
    Sketcher.Constraint("Horizontal", 3),
    Sketcher.Constraint("DistanceY", 0, 2, 0, 1, 676.7),
    Sketcher.Constraint("DistanceX", 1, 1, 1, 2, 370.7625),
    Sketcher.Constraint("DistanceY", 0, 2, -1, 1, 405.019469),
    Sketcher.Constraint("DistanceX", 0, 2, -1, 1, 1244.987886),
])
pad14 = body12.newObject("PartDesign::Pad", "Pad013")
pad14.Profile = sketch14
pad14.Length = 18
body13 = doc.addObject("PartDesign::Body", "Body012")

sketch15 = body13.newObject("Sketcher::SketchObject", "Sketch014")
sketch15.AttachmentSupport = (doc.getObject("XZ_Plane012"), [""])
sketch15.MapMode = "FlatFace"
sketch15.AttachmentOffset = App.Placement(V(0, 0, 400), App.Rotation())
add_polygon(sketch15, [(-871, 272), (-871, -405), (-500, -405), (-500, 272)])
sketch15.addConstraint([
    Sketcher.Constraint("Vertical", 0),
    Sketcher.Constraint("Horizontal", 1),
    Sketcher.Constraint("Vertical", 2),
    Sketcher.Constraint("Horizontal", 3),
    Sketcher.Constraint("DistanceY", 0, 2, 0, 1, 676.7),
    Sketcher.Constraint("DistanceX", 1, 1, 1, 2, 370.7625),
    Sketcher.Constraint("DistanceY", 0, 2, -1, 1, 405.019469),
    Sketcher.Constraint("DistanceX", 0, 2, -1, 1, 871.050386),
])
pad15 = body13.newObject("PartDesign::Pad", "Pad014")
pad15.Profile = sketch15
pad15.Length = 18
body14 = doc.addObject("PartDesign::Body", "Body013")

sketch16 = body14.newObject("Sketcher::SketchObject", "Sketch015")
sketch16.AttachmentSupport = (doc.getObject("XZ_Plane013"), [""])
sketch16.MapMode = "FlatFace"
sketch16.AttachmentOffset = App.Placement(V(0, 0, 400), App.Rotation())
add_polygon(sketch16, [(-495, 272), (-495, -405), (-124, -405), (-124, 272)])
sketch16.addConstraint([
    Sketcher.Constraint("Vertical", 0),
    Sketcher.Constraint("Horizontal", 1),
    Sketcher.Constraint("Vertical", 2),
    Sketcher.Constraint("Horizontal", 3),
    Sketcher.Constraint("DistanceY", 0, 2, 0, 1, 676.7),
    Sketcher.Constraint("DistanceX", 1, 1, 1, 2, 370.7625),
    Sketcher.Constraint("DistanceY", 0, 2, -1, 1, 405.019469),
    Sketcher.Constraint("DistanceX", 0, 2, -1, 1, 494.987886),
])
pad16 = body14.newObject("PartDesign::Pad", "Pad015")
pad16.Profile = sketch16
pad16.Length = 18
body15 = doc.addObject("PartDesign::Body", "Body014")

sketch17 = body15.newObject("Sketcher::SketchObject", "Sketch016")
sketch17.AttachmentSupport = (doc.getObject("XZ_Plane014"), [""])
sketch17.MapMode = "FlatFace"
sketch17.AttachmentOffset = App.Placement(V(0, 0, 400), App.Rotation())
add_polygon(sketch17, [(-121, 272), (-121, -405), (250, -405), (250, 272)])
sketch17.addConstraint([
    Sketcher.Constraint("Vertical", 0),
    Sketcher.Constraint("Horizontal", 1),
    Sketcher.Constraint("Vertical", 2),
    Sketcher.Constraint("Horizontal", 3),
    Sketcher.Constraint("DistanceY", 0, 2, 0, 1, 676.7),
    Sketcher.Constraint("DistanceX", 1, 1, 1, 2, 370.7625),
    Sketcher.Constraint("DistanceY", 0, 2, -1, 1, 405.019469),
    Sketcher.Constraint("DistanceX", 0, 2, -1, 1, 121.050386),
])
pad17 = body15.newObject("PartDesign::Pad", "Pad016")
pad17.Profile = sketch17
pad17.Length = 18
body16 = doc.addObject("PartDesign::Body", "Body015")

sketch18 = body16.newObject("Sketcher::SketchObject", "Sketch017")
sketch18.AttachmentSupport = (doc.getObject("XZ_Plane015"), [""])
sketch18.MapMode = "FlatFace"
sketch18.AttachmentOffset = App.Placement(V(0, 0, 400), App.Rotation())
add_polygon(sketch18, [(255, 272), (255, -405), (982, -405), (982, 272)])
sketch18.addConstraint([
    Sketcher.Constraint("Vertical", 0),
    Sketcher.Constraint("Horizontal", 1),
    Sketcher.Constraint("Vertical", 2),
    Sketcher.Constraint("Horizontal", 3),
    Sketcher.Constraint("DistanceX", 1, 1, 1, 2, 726.7),
    Sketcher.Constraint("DistanceY", 0, 2, 0, 1, 676.7),
    Sketcher.Constraint("DistanceY", 0, 2, -1, 1, 405.019469),
    Sketcher.Constraint("DistanceX", -1, 1, 0, 2, 255.012114),
])
pad18 = body16.newObject("PartDesign::Pad", "Pad017")
pad18.Profile = sketch18
pad18.Length = 18
body17 = doc.addObject("PartDesign::Body", "Body016")

sketch19 = body17.newObject("Sketcher::SketchObject", "Sketch018")
sketch19.AttachmentSupport = (doc.getObject("XZ_Plane016"), [""])
sketch19.MapMode = "FlatFace"
add_polygon(sketch19, [(-1257, 1333), (993, 1333), (993, 783), (-773, 783), (-773, 283), (-1239, 283)])
sketch19.addConstraint([
    Sketcher.Constraint("Horizontal", 0),
    Sketcher.Constraint("Vertical", 1),
    Sketcher.Constraint("Horizontal", 2),
    Sketcher.Constraint("Vertical", 3),
    Sketcher.Constraint("Horizontal", 4),
    Sketcher.Constraint("DistanceX", 0, 1, 0, 2, 2250.0),
    Sketcher.Constraint("DistanceY", 1, 2, 1, 1, 550.0),
    Sketcher.Constraint("DistanceY", 3, 2, 3, 1, 500.0),
    Sketcher.Constraint("DistanceX", 4, 2, 1, 2, 2232.0),
    Sketcher.Constraint("DistanceX", 2, 2, 2, 1, 1766.386792),
    Sketcher.Constraint("DistanceY", -1, 1, 0, 2, 1333.330531),
    Sketcher.Constraint("DistanceX", 2, 2, -1, 1, 773.024678),
])
pad19 = body17.newObject("PartDesign::Pad", "Pad018")
pad19.Profile = sketch19
pad19.Length = 6
pad19.Reversed = True

doc.recompute()
